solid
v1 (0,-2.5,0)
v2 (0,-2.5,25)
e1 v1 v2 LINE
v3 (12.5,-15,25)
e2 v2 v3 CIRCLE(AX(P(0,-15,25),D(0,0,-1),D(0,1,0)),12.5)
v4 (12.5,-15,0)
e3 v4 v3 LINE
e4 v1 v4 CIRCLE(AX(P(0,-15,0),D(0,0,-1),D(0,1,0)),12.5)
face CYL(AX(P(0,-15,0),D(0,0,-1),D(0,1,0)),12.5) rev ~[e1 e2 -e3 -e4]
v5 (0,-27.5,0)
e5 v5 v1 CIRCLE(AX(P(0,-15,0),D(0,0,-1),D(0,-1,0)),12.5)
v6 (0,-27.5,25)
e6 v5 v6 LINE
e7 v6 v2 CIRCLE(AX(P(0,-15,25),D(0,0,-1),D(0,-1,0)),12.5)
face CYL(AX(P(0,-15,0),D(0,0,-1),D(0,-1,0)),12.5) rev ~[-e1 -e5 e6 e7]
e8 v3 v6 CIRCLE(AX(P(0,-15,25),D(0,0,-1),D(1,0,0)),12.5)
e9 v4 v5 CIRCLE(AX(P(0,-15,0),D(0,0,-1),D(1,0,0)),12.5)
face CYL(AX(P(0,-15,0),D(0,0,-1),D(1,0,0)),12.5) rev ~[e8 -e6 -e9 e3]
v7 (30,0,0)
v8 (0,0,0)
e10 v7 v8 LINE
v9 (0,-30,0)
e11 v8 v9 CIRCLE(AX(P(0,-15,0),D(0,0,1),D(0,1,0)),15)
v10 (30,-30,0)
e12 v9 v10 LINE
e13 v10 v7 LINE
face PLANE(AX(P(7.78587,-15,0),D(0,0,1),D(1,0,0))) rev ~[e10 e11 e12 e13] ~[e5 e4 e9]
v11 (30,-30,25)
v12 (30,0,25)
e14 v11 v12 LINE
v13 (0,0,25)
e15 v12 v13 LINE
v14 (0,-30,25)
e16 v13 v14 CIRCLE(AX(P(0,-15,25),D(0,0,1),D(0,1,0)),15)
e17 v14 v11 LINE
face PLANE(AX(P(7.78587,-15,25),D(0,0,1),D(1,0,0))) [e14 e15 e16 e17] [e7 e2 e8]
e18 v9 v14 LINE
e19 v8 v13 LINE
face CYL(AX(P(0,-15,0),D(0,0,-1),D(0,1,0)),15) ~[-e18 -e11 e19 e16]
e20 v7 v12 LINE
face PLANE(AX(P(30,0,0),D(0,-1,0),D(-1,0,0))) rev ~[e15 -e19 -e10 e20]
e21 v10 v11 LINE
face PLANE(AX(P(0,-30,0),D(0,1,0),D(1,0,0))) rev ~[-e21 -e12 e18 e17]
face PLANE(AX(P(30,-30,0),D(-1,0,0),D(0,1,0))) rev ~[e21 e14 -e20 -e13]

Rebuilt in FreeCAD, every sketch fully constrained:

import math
import FreeCAD as App
import Part
import Sketcher
from FreeCAD import Vector

doc = App.newDocument("Part")
body = doc.addObject("PartDesign::Body", "Body")

# Sketch on XY plane
sketch1 = body.newObject("Sketcher::SketchObject", "Sketch")
sketch1.AttachmentSupport = (doc.getObject("XY_Plane"), [""])
sketch1.MapMode = "FlatFace"
sketch1.addGeometry(Part.LineSegment(Vector(30, 0, 0), Vector(0, 0, 0)), False)
sketch1.addGeometry(Part.ArcOfCircle(Part.Circle(Vector(0, -15, 0), Vector(0, 0, 1), 15), math.radians(90), math.radians(270)), False)
sketch1.addGeometry(Part.LineSegment(Vector(0, -30, 0), Vector(30, -30, 0)), False)
sketch1.addGeometry(Part.LineSegment(Vector(30, -30, 0), Vector(30, 0, 0)), False)
sketch1.addGeometry(Part.ArcOfCircle(Part.Circle(Vector(0, -15, 0), Vector(0, 0, 1), 12.5), math.radians(-90), math.radians(0)), False)
sketch1.addGeometry(Part.ArcOfCircle(Part.Circle(Vector(0, -15, 0), Vector(0, 0, 1), 12.5), math.radians(90), math.radians(270)), False)
sketch1.addGeometry(Part.ArcOfCircle(Part.Circle(Vector(0, -15, 0), Vector(0, 0, 1), 12.5), math.radians(0), math.radians(90)), False)
sketch1.addConstraint(Sketcher.Constraint("Tangent", 0, 2, 1, 1))
sketch1.addConstraint(Sketcher.Constraint("Tangent", 1, 2, 2, 1))
sketch1.addConstraint(Sketcher.Constraint("Coincident", 2, 2, 3, 1))
sketch1.addConstraint(Sketcher.Constraint("Coincident", 3, 2, 0, 1))
sketch1.addConstraint(Sketcher.Constraint("Tangent", 4, 1, 5, 2))
sketch1.addConstraint(Sketcher.Constraint("Tangent", 5, 1, 6, 2))
sketch1.addConstraint(Sketcher.Constraint("Tangent", 6, 1, 4, 2))
sketch1.addConstraint(Sketcher.Constraint("Horizontal", 0))
sketch1.addConstraint(Sketcher.Constraint("Horizontal", 2))
sketch1.addConstraint(Sketcher.Constraint("Vertical", 3))
sketch1.addConstraint(Sketcher.Constraint("Coincident", 0, 2, -1, 1))
sketch1.addConstraint(Sketcher.Constraint("Coincident", 4, 3, 1, 3))
sketch1.addConstraint(Sketcher.Constraint("PointOnObject", 4, 1, -2))
sketch1.addConstraint(Sketcher.Constraint("PointOnObject", 5, 1, -2))
sketch1.addConstraint(Sketcher.Constraint("Horizontal", 5, 3, 6, 1))
sketch1.addConstraint(Sketcher.Constraint("Equal", 2, 3))
sketch1.addConstraint(Sketcher.Constraint("Radius", 1, 15.0))
sketch1.addConstraint(Sketcher.Constraint("Radius", 4, 12.5))
pad1 = body.newObject("PartDesign::Pad", "Pad")
pad1.Profile = sketch1
pad1.Length = 25

doc.recompute()
